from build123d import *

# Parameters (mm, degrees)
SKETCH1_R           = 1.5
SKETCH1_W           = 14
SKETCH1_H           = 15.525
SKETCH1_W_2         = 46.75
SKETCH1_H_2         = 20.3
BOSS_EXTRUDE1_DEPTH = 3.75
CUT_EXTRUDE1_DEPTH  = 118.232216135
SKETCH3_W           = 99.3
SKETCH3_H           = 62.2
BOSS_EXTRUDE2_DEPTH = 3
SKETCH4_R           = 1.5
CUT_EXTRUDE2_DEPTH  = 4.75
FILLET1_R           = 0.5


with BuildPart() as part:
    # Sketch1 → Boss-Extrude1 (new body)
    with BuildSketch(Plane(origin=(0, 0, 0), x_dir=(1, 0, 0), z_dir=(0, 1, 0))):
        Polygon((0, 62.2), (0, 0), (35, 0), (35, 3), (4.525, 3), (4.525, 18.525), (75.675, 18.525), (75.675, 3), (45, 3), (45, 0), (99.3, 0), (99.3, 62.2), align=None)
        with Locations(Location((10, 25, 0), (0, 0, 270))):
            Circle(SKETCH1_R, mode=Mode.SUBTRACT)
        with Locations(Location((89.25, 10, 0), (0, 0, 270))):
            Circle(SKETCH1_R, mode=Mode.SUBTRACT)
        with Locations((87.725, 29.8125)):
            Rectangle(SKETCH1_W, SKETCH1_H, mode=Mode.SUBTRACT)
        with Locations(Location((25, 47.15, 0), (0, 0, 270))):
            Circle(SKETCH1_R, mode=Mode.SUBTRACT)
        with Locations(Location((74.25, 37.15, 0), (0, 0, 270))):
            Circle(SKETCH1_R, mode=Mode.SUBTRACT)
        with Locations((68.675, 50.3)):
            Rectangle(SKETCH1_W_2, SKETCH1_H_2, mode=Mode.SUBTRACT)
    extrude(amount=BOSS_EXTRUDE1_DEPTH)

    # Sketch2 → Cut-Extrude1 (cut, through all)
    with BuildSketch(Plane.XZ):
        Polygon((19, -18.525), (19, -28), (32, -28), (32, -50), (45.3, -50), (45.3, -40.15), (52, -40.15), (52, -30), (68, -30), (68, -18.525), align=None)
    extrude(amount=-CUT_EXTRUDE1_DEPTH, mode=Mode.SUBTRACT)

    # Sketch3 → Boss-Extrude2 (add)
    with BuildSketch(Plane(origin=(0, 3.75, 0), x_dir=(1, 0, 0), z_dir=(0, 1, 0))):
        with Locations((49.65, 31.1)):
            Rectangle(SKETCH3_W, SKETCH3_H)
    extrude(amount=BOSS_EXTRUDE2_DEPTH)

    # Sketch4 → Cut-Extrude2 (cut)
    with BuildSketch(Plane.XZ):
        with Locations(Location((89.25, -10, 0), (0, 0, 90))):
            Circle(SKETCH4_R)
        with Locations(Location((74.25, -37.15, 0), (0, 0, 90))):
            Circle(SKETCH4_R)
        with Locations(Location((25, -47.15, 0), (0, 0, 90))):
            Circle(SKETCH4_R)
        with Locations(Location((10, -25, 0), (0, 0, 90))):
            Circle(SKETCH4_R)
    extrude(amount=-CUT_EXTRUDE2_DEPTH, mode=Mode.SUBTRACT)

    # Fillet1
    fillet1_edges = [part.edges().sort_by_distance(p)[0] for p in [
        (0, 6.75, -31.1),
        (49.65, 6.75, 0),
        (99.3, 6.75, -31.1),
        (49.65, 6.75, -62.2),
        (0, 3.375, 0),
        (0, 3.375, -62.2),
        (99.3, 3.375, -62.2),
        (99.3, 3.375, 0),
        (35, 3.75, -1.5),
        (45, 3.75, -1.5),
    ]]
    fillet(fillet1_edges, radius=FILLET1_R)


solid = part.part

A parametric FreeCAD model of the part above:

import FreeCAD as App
import Part
import Sketcher


def edges_at(feature, points):
    """Names of the edges that pass closest to the given points."""
    edges = feature.Shape.Edges
    near = lambda p: min(range(len(edges)), key=lambda i: edges[i].distToShape(Part.Vertex(*p))[0])
    return sorted({f"Edge{near(p) + 1}" for p in points})

doc = App.newDocument("Part")
params = doc.addObject("Spreadsheet::Sheet", "Params")
for row, (alias, value) in enumerate([
    ("sketch1_diameter", "3 mm"),
    ("sketch1_width", "35 mm"),
    ("sketch1_width2", "14 mm"),
    ("sketch1_height", "3 mm"),
    ("sketch1_width3", "54.3 mm"),
    ("pad1_length", "3.75 mm"),
    ("sketch2_width", "13 mm"),
    ("sketch2_width2", "16 mm"),
    ("sketch2_width3", "49 mm"),
    ("sketch2_height", "22 mm"),
    ("sketch2_width4", "13.3 mm"),
    ("sketch3_width", "99.3 mm"),
    ("sketch3_height", "62.2 mm"),
    ("pad2_length", "3 mm"),
    ("sketch4_diameter", "3 mm"),
    ("pocket2_length", "4.75 mm"),
    ("fillet_radius", "0.5 mm"),
], start=1):
    params.set(f"A{row}", alias)
    params.set(f"B{row}", "=" + value)
    params.setAlias(f"B{row}", alias)

body = doc.addObject("PartDesign::Body", "Body")

# Sketch on XZ plane
sketch1 = body.newObject("Sketcher::SketchObject", "Sketch")
sketch1.AttachmentSupport = (doc.getObject("XZ_Plane"), [""])
sketch1.MapMode = "FlatFace"
sketch1.addGeometry(Part.LineSegment(App.Vector(0, -62.2, 0), App.Vector(0, 0, 0)), False)
sketch1.addGeometry(Part.LineSegment(App.Vector(0, 0, 0), App.Vector(35, 0, 0)), False)
sketch1.addGeometry(Part.LineSegment(App.Vector(35, 0, 0), App.Vector(35, -3, 0)), False)
sketch1.addGeometry(Part.LineSegment(App.Vector(35, -3, 0), App.Vector(4.5, -3, 0)), False)
sketch1.addGeometry(Part.LineSegment(App.Vector(4.5, -3, 0), App.Vector(4.5, -18.5, 0)), False)
sketch1.addGeometry(Part.LineSegment(App.Vector(4.5, -18.5, 0), App.Vector(75.7, -18.5, 0)), False)
sketch1.addGeometry(Part.LineSegment(App.Vector(75.7, -18.5, 0), App.Vector(75.7, -3, 0)), False)
sketch1.addGeometry(Part.LineSegment(App.Vector(75.7, -3, 0), App.Vector(45, -3, 0)), False)
sketch1.addGeometry(Part.LineSegment(App.Vector(45, -3, 0), App.Vector(45, 0, 0)), False)
sketch1.addGeometry(Part.LineSegment(App.Vector(45, 0, 0), App.Vector(99.3, 0, 0)), False)
sketch1.addGeometry(Part.LineSegment(App.Vector(99.3, 0, 0), App.Vector(99.3, -62.2, 0)), False)
sketch1.addGeometry(Part.LineSegment(App.Vector(99.3, -62.2, 0), App.Vector(0, -62.2, 0)), False)
sketch1.addGeometry(Part.Circle(App.Vector(10, -25, 0), App.Vector(0, 0, 1), 1.5), False)
sketch1.addGeometry(Part.Circle(App.Vector(89.2, -10, 0), App.Vector(0, 0, 1), 1.5), False)
sketch1.addGeometry(Part.LineSegment(App.Vector(94.7, -22.1, 0), App.Vector(80.7, -22.1, 0)), False)
sketch1.addGeometry(Part.LineSegment(App.Vector(80.7, -22.1, 0), App.Vector(80.7, -37.6, 0)), False)
sketch1.addGeometry(Part.LineSegment(App.Vector(80.7, -37.6, 0), App.Vector(94.7, -37.6, 0)), False)
sketch1.addGeometry(Part.LineSegment(App.Vector(94.7, -37.6, 0), App.Vector(94.7, -22.1, 0)), False)
sketch1.addGeometry(Part.Circle(App.Vector(25, -47.1, 0), App.Vector(0, 0, 1), 1.5), False)
sketch1.addGeometry(Part.Circle(App.Vector(74.2, -37.1, 0), App.Vector(0, 0, 1), 1.5), False)
sketch1.addGeometry(Part.LineSegment(App.Vector(92, -40.1, 0), App.Vector(45.3, -40.1, 0)), False)
sketch1.addGeometry(Part.LineSegment(App.Vector(45.3, -40.1, 0), App.Vector(45.3, -60.5, 0)), False)
sketch1.addGeometry(Part.LineSegment(App.Vector(45.3, -60.5, 0), App.Vector(92, -60.5, 0)), False)
sketch1.addGeometry(Part.LineSegment(App.Vector(92, -60.5, 0), App.Vector(92, -40.1, 0)), False)
sketch1.addConstraint(Sketcher.Constraint("Coincident", 0, 2, 1, 1))
sketch1.addConstraint(Sketcher.Constraint("Coincident", 1, 2, 2, 1))
sketch1.addConstraint(Sketcher.Constraint("Coincident", 2, 2, 3, 1))
sketch1.addConstraint(Sketcher.Constraint("Coincident", 3, 2, 4, 1))
sketch1.addConstraint(Sketcher.Constraint("Coincident", 4, 2, 5, 1))
sketch1.addConstraint(Sketcher.Constraint("Coincident", 5, 2, 6, 1))
sketch1.addConstraint(Sketcher.Constraint("Coincident", 6, 2, 7, 1))
sketch1.addConstraint(Sketcher.Constraint("Coincident", 7, 2, 8, 1))
sketch1.addConstraint(Sketcher.Constraint("Coincident", 8, 2, 9, 1))
sketch1.addConstraint(Sketcher.Constraint("Coincident", 9, 2, 10, 1))
sketch1.addConstraint(Sketcher.Constraint("Coincident", 10, 2, 11, 1))
sketch1.addConstraint(Sketcher.Constraint("Coincident", 11, 2, 0, 1))
sketch1.addConstraint(Sketcher.Constraint("Coincident", 14, 2, 15, 1))
sketch1.addConstraint(Sketcher.Constraint("Coincident", 15, 2, 16, 1))
sketch1.addConstraint(Sketcher.Constraint("Coincident", 16, 2, 17, 1))
sketch1.addConstraint(Sketcher.Constraint("Coincident", 17, 2, 14, 1))
sketch1.addConstraint(Sketcher.Constraint("Coincident", 20, 2, 21, 1))
sketch1.addConstraint(Sketcher.Constraint("Coincident", 21, 2, 22, 1))
sketch1.addConstraint(Sketcher.Constraint("Coincident", 22, 2, 23, 1))
sketch1.addConstraint(Sketcher.Constraint("Coincident", 23, 2, 20, 1))
sketch1.addConstraint(Sketcher.Constraint("Vertical", 0))
sketch1.addConstraint(Sketcher.Constraint("Horizontal", 1))
sketch1.addConstraint(Sketcher.Constraint("Vertical", 2))
sketch1.addConstraint(Sketcher.Constraint("Horizontal", 3))
sketch1.addConstraint(Sketcher.Constraint("Vertical", 4))
sketch1.addConstraint(Sketcher.Constraint("Horizontal", 5))
sketch1.addConstraint(Sketcher.Constraint("Vertical", 6))
sketch1.addConstraint(Sketcher.Constraint("Horizontal", 7))
sketch1.addConstraint(Sketcher.Constraint("Vertical", 8))
sketch1.addConstraint(Sketcher.Constraint("Horizontal", 9))
sketch1.addConstraint(Sketcher.Constraint("Vertical", 10))
sketch1.addConstraint(Sketcher.Constraint("Horizontal", 11))
sketch1.addConstraint(Sketcher.Constraint("Horizontal", 14))
sketch1.addConstraint(Sketcher.Constraint("Vertical", 15))
sketch1.addConstraint(Sketcher.Constraint("Horizontal", 16))
sketch1.addConstraint(Sketcher.Constraint("Vertical", 17))
sketch1.addConstraint(Sketcher.Constraint("Horizontal", 20))
sketch1.addConstraint(Sketcher.Constraint("Vertical", 21))
sketch1.addConstraint(Sketcher.Constraint("Horizontal", 22))
sketch1.addConstraint(Sketcher.Constraint("Vertical", 23))
sketch1.addConstraint(Sketcher.Constraint("Coincident", 0, 2, -1, 1))
sketch1.addConstraint(Sketcher.Constraint("Equal", 12, 13))
sketch1.addConstraint(Sketcher.Constraint("Equal", 13, 18))
sketch1.addConstraint(Sketcher.Constraint("Equal", 18, 19))
sketch1.addConstraint(Sketcher.Constraint("PointOnObject", 8, 2, -1))
sketch1.addConstraint(Sketcher.Constraint("Horizontal", 3, 2, 6, 2))
sketch1.addConstraint(Sketcher.Constraint("Equal", 6, 15))
sketch1.addConstraint(Sketcher.Constraint("Diameter", 12, 3.0))
sketch1.addConstraint(Sketcher.Constraint("DistanceX", 1, 1, 1, 2, 35.0))
sketch1.addConstraint(Sketcher.Constraint("DistanceX", 14, 2, 14, 1, 14.0))
sketch1.addConstraint(Sketcher.Constraint("DistanceY", 2, 2, 2, 1, 3.0))
sketch1.addConstraint(Sketcher.Constraint("DistanceX", 9, 1, 9, 2, 54.3))
sketch1.addConstraint(Sketcher.Constraint("DistanceX", 11, 2, 11, 1, 99.3))
sketch1.addConstraint(Sketcher.Constraint("DistanceY", 0, 1, 0, 2, 62.2))
sketch1.addConstraint(Sketcher.Constraint("DistanceY", 21, 2, 21, 1, 20.3))
sketch1.addConstraint(Sketcher.Constraint("DistanceX", -1, 1, 12, 3, 10.0))
sketch1.addConstraint(Sketcher.Constraint("DistanceY", 12, 3, -1, 1, 25.0))
sketch1.addConstraint(Sketcher.Constraint("DistanceY", 13, 3, -1, 1, 10.0))
sketch1.addConstraint(Sketcher.Constraint("DistanceX", -1, 1, 18, 3, 25.0))
sketch1.addConstraint(Sketcher.Constraint("DistanceX", 19, 3, 13, 3, 15.0))
sketch1.addConstraint(Sketcher.Constraint("DistanceY", 18, 3, 19, 3, 10.0))
sketch1.addConstraint(Sketcher.Constraint("DistanceY", 18, 3, 20, 2, 7.0))
sketch1.addConstraint(Sketcher.Constraint("DistanceX", 5, 1, 5, 2, 71.15))
sketch1.addConstraint(Sketcher.Constraint("DistanceX", 20, 2, 20, 1, 46.75))
sketch1.addConstraint(Sketcher.Constraint("DistanceX", -1, 1, 20, 2, 45.3))
sketch1.addConstraint(Sketcher.Constraint("DistanceY", 19, 3, 14, 2, 15.1))
sketch1.addConstraint(Sketcher.Constraint("DistanceX", 19, 3, 22, 2, 17.8))
sketch1.addConstraint(Sketcher.Constraint("DistanceX", 3, 2, 3, 1, 30.475))
sketch1.addConstraint(Sketcher.Constraint("DistanceY", 4, 2, 4, 1, 15.525))
sketch1.addConstraint(Sketcher.Constraint("DistanceY", 18, 3, -1, 1, 47.15))
sketch1.addConstraint(Sketcher.Constraint("DistanceX", 5, 2, 14, 2, 5.05))
sketch1.setExpression("Constraints[47]", "Params.sketch1_diameter")
sketch1.setExpression("Constraints[48]", "Params.sketch1_width")
sketch1.setExpression("Constraints[49]", "Params.sketch1_width2")
sketch1.setExpression("Constraints[50]", "Params.sketch1_height")
sketch1.setExpression("Constraints[51]", "Params.sketch1_width3")
pad1 = body.newObject("PartDesign::Pad", "Pad")
pad1.Profile = sketch1
pad1.setExpression("Length", "Params.pad1_length")
pad1.Reversed = True

# Sketch on XZ plane
sketch2 = body.newObject("Sketcher::SketchObject", "Sketch001")
sketch2.AttachmentSupport = (doc.getObject("XZ_Plane"), [""])
sketch2.MapMode = "FlatFace"
sketch2.addGeometry(Part.LineSegment(App.Vector(19, -19, 0), App.Vector(19, -28, 0)), False)
sketch2.addGeometry(Part.LineSegment(App.Vector(19, -28, 0), App.Vector(32, -28, 0)), False)
sketch2.addGeometry(Part.LineSegment(App.Vector(32, -28, 0), App.Vector(32, -50, 0)), False)
sketch2.addGeometry(Part.LineSegment(App.Vector(32, -50, 0), App.Vector(45, -50, 0)), False)
sketch2.addGeometry(Part.LineSegment(App.Vector(45, -50, 0), App.Vector(45, -40, 0)), False)
sketch2.addGeometry(Part.LineSegment(App.Vector(45, -40, 0), App.Vector(52, -40, 0)), False)
sketch2.addGeometry(Part.LineSegment(App.Vector(52, -40, 0), App.Vector(52, -30, 0)), False)
sketch2.addGeometry(Part.LineSegment(App.Vector(52, -30, 0), App.Vector(68, -30, 0)), False)
sketch2.addGeometry(Part.LineSegment(App.Vector(68, -30, 0), App.Vector(68, -19, 0)), False)
sketch2.addGeometry(Part.LineSegment(App.Vector(68, -19, 0), App.Vector(19, -19, 0)), False)
sketch2.addConstraint(Sketcher.Constraint("Coincident", 0, 2, 1, 1))
sketch2.addConstraint(Sketcher.Constraint("Coincident", 1, 2, 2, 1))
sketch2.addConstraint(Sketcher.Constraint("Coincident", 2, 2, 3, 1))
sketch2.addConstraint(Sketcher.Constraint("Coincident", 3, 2, 4, 1))
sketch2.addConstraint(Sketcher.Constraint("Coincident", 4, 2, 5, 1))
sketch2.addConstraint(Sketcher.Constraint("Coincident", 5, 2, 6, 1))
sketch2.addConstraint(Sketcher.Constraint("Coincident", 6, 2, 7, 1))
sketch2.addConstraint(Sketcher.Constraint("Coincident", 7, 2, 8, 1))
sketch2.addConstraint(Sketcher.Constraint("Coincident", 8, 2, 9, 1))
sketch2.addConstraint(Sketcher.Constraint("Coincident", 9, 2, 0, 1))
sketch2.addConstraint(Sketcher.Constraint("Vertical", 0))
sketch2.addConstraint(Sketcher.Constraint("Horizontal", 1))
sketch2.addConstraint(Sketcher.Constraint("Vertical", 2))
sketch2.addConstraint(Sketcher.Constraint("Horizontal", 3))
sketch2.addConstraint(Sketcher.Constraint("Vertical", 4))
sketch2.addConstraint(Sketcher.Constraint("Horizontal", 5))
sketch2.addConstraint(Sketcher.Constraint("Vertical", 6))
sketch2.addConstraint(Sketcher.Constraint("Horizontal", 7))
sketch2.addConstraint(Sketcher.Constraint("Vertical", 8))
sketch2.addConstraint(Sketcher.Constraint("Horizontal", 9))
sketch2.addConstraint(Sketcher.Constraint("DistanceX", 1, 1, 1, 2, 13.0))
sketch2.addConstraint(Sketcher.Constraint("DistanceX", 7, 1, 7, 2, 16.0))
sketch2.addConstraint(Sketcher.Constraint("DistanceX", 9, 2, 9, 1, 49.0))
sketch2.addConstraint(Sketcher.Constraint("DistanceY", 2, 2, 2, 1, 22.0))
sketch2.addConstraint(Sketcher.Constraint("DistanceX", 3, 1, 3, 2, 13.3))
sketch2.addConstraint(Sketcher.Constraint("DistanceX", -1, 1, 0, 2, 19.0))
sketch2.addConstraint(Sketcher.Constraint("DistanceY", 0, 2, -1, 1, 28.0))
sketch2.addConstraint(Sketcher.Constraint("DistanceY", 6, 2, -1, 1, 30.0))
sketch2.addConstraint(Sketcher.Constraint("DistanceY", 4, 1, 4, 2, 9.85))
sketch2.addConstraint(Sketcher.Constraint("DistanceY", 0, 2, 0, 1, 9.475))
sketch2.setExpression("Constraints[20]", "Params.sketch2_width")
sketch2.setExpression("Constraints[21]", "Params.sketch2_width2")
sketch2.setExpression("Constraints[22]", "Params.sketch2_width3")
sketch2.setExpression("Constraints[23]", "Params.sketch2_height")
sketch2.setExpression("Constraints[24]", "Params.sketch2_width4")
pocket1 = body.newObject("PartDesign::Pocket", "Pocket")
pocket1.Profile = sketch2
pocket1.Type = "ThroughAll"

# Sketch on XZ plane
sketch3 = body.newObject("Sketcher::SketchObject", "Sketch002")
sketch3.AttachmentSupport = (doc.getObject("XZ_Plane"), [""])
sketch3.MapMode = "FlatFace"
sketch3.AttachmentOffset = App.Placement(App.Vector(0, 0, -3.75), App.Rotation())
sketch3.addGeometry(Part.LineSegment(App.Vector(0, -62, 0), App.Vector(0, 0, 0)), False)
sketch3.addGeometry(Part.LineSegment(App.Vector(0, 0, 0), App.Vector(99, 0, 0)), False)
sketch3.addGeometry(Part.LineSegment(App.Vector(99, 0, 0), App.Vector(99, -62, 0)), False)
sketch3.addGeometry(Part.LineSegment(App.Vector(99, -62, 0), App.Vector(0, -62, 0)), False)
sketch3.addConstraint(Sketcher.Constraint("Coincident", 0, 2, 1, 1))
sketch3.addConstraint(Sketcher.Constraint("Coincident", 1, 2, 2, 1))
sketch3.addConstraint(Sketcher.Constraint("Coincident", 2, 2, 3, 1))
sketch3.addConstraint(Sketcher.Constraint("Coincident", 3, 2, 0, 1))
sketch3.addConstraint(Sketcher.Constraint("Vertical", 0))
sketch3.addConstraint(Sketcher.Constraint("Horizontal", 1))
sketch3.addConstraint(Sketcher.Constraint("Vertical", 2))
sketch3.addConstraint(Sketcher.Constraint("Horizontal", 3))
sketch3.addConstraint(Sketcher.Constraint("Coincident", 0, 2, -1, 1))
sketch3.addConstraint(Sketcher.Constraint("DistanceX", 1, 1, 1, 2, 99.3))
sketch3.addConstraint(Sketcher.Constraint("DistanceY", 0, 1, 0, 2, 62.2))
sketch3.setExpression("Constraints[9]", "Params.sketch3_width")
sketch3.setExpression("Constraints[10]", "Params.sketch3_height")
pad2 = body.newObject("PartDesign::Pad", "Pad001")
pad2.Profile = sketch3
pad2.setExpression("Length", "Params.pad2_length")
pad2.Reversed = True

# Sketch on XZ plane
sketch4 = body.newObject("Sketcher::SketchObject", "Sketch003")
sketch4.AttachmentSupport = (doc.getObject("XZ_Plane"), [""])
sketch4.MapMode = "FlatFace"
sketch4.addGeometry(Part.Circle(App.Vector(89.2, -10, 0), App.Vector(0, 0, 1), 1.5), False)
sketch4.addGeometry(Part.Circle(App.Vector(74.2, -37.1, 0), App.Vector(0, 0, 1), 1.5), False)
sketch4.addGeometry(Part.Circle(App.Vector(25, -47.1, 0), App.Vector(0, 0, 1), 1.5), False)
sketch4.addGeometry(Part.Circle(App.Vector(10, -25, 0), App.Vector(0, 0, 1), 1.5), False)
sketch4.addConstraint(Sketcher.Constraint("Equal", 0, 1))
sketch4.addConstraint(Sketcher.Constraint("Equal", 1, 2))
sketch4.addConstraint(Sketcher.Constraint("Equal", 2, 3))
sketch4.addConstraint(Sketcher.Constraint("Diameter", 0, 3.0))
sketch4.addConstraint(Sketcher.Constraint("DistanceY", 0, 3, -1, 1, 10.0))
sketch4.addConstraint(Sketcher.Constraint("DistanceX", -1, 1, 2, 3, 25.0))
sketch4.addConstraint(Sketcher.Constraint("DistanceX", -1, 1, 3, 3, 10.0))
sketch4.addConstraint(Sketcher.Constraint("DistanceY", 3, 3, -1, 1, 25.0))
sketch4.addConstraint(Sketcher.Constraint("DistanceX", 1, 3, 0, 3, 15.0))
sketch4.addConstraint(Sketcher.Constraint("DistanceY", 2, 3, 1, 3, 10.0))
sketch4.addConstraint(Sketcher.Constraint("DistanceX", -1, 1, 0, 3, 89.25))
sketch4.addConstraint(Sketcher.Constraint("DistanceY", 1, 3, -1, 1, 37.15))
sketch4.setExpression("Constraints[3]", "Params.sketch4_diameter")
pocket2 = body.newObject("PartDesign::Pocket", "Pocket001")
pocket2.Profile = sketch4
pocket2.setExpression("Length", "Params.pocket2_length")
doc.recompute()

fillet = body.newObject("PartDesign::Fillet", "Fillet")
fillet.Base = (pocket2, edges_at(pocket2, [
    (0, 6.75, -31.1),
    (49.65, 6.75, 0),
    (99.3, 6.75, -31.1),
    (49.65, 6.75, -62.2),
    (0, 3.375, 0),
    (0, 3.375, -62.2),
    (99.3, 3.375, -62.2),
    (99.3, 3.375, 0),
    (35, 3.75, -1.5),
    (45, 3.75, -1.5),
]))
fillet.setExpression("Radius", "Params.fillet_radius")

doc.recompute()
